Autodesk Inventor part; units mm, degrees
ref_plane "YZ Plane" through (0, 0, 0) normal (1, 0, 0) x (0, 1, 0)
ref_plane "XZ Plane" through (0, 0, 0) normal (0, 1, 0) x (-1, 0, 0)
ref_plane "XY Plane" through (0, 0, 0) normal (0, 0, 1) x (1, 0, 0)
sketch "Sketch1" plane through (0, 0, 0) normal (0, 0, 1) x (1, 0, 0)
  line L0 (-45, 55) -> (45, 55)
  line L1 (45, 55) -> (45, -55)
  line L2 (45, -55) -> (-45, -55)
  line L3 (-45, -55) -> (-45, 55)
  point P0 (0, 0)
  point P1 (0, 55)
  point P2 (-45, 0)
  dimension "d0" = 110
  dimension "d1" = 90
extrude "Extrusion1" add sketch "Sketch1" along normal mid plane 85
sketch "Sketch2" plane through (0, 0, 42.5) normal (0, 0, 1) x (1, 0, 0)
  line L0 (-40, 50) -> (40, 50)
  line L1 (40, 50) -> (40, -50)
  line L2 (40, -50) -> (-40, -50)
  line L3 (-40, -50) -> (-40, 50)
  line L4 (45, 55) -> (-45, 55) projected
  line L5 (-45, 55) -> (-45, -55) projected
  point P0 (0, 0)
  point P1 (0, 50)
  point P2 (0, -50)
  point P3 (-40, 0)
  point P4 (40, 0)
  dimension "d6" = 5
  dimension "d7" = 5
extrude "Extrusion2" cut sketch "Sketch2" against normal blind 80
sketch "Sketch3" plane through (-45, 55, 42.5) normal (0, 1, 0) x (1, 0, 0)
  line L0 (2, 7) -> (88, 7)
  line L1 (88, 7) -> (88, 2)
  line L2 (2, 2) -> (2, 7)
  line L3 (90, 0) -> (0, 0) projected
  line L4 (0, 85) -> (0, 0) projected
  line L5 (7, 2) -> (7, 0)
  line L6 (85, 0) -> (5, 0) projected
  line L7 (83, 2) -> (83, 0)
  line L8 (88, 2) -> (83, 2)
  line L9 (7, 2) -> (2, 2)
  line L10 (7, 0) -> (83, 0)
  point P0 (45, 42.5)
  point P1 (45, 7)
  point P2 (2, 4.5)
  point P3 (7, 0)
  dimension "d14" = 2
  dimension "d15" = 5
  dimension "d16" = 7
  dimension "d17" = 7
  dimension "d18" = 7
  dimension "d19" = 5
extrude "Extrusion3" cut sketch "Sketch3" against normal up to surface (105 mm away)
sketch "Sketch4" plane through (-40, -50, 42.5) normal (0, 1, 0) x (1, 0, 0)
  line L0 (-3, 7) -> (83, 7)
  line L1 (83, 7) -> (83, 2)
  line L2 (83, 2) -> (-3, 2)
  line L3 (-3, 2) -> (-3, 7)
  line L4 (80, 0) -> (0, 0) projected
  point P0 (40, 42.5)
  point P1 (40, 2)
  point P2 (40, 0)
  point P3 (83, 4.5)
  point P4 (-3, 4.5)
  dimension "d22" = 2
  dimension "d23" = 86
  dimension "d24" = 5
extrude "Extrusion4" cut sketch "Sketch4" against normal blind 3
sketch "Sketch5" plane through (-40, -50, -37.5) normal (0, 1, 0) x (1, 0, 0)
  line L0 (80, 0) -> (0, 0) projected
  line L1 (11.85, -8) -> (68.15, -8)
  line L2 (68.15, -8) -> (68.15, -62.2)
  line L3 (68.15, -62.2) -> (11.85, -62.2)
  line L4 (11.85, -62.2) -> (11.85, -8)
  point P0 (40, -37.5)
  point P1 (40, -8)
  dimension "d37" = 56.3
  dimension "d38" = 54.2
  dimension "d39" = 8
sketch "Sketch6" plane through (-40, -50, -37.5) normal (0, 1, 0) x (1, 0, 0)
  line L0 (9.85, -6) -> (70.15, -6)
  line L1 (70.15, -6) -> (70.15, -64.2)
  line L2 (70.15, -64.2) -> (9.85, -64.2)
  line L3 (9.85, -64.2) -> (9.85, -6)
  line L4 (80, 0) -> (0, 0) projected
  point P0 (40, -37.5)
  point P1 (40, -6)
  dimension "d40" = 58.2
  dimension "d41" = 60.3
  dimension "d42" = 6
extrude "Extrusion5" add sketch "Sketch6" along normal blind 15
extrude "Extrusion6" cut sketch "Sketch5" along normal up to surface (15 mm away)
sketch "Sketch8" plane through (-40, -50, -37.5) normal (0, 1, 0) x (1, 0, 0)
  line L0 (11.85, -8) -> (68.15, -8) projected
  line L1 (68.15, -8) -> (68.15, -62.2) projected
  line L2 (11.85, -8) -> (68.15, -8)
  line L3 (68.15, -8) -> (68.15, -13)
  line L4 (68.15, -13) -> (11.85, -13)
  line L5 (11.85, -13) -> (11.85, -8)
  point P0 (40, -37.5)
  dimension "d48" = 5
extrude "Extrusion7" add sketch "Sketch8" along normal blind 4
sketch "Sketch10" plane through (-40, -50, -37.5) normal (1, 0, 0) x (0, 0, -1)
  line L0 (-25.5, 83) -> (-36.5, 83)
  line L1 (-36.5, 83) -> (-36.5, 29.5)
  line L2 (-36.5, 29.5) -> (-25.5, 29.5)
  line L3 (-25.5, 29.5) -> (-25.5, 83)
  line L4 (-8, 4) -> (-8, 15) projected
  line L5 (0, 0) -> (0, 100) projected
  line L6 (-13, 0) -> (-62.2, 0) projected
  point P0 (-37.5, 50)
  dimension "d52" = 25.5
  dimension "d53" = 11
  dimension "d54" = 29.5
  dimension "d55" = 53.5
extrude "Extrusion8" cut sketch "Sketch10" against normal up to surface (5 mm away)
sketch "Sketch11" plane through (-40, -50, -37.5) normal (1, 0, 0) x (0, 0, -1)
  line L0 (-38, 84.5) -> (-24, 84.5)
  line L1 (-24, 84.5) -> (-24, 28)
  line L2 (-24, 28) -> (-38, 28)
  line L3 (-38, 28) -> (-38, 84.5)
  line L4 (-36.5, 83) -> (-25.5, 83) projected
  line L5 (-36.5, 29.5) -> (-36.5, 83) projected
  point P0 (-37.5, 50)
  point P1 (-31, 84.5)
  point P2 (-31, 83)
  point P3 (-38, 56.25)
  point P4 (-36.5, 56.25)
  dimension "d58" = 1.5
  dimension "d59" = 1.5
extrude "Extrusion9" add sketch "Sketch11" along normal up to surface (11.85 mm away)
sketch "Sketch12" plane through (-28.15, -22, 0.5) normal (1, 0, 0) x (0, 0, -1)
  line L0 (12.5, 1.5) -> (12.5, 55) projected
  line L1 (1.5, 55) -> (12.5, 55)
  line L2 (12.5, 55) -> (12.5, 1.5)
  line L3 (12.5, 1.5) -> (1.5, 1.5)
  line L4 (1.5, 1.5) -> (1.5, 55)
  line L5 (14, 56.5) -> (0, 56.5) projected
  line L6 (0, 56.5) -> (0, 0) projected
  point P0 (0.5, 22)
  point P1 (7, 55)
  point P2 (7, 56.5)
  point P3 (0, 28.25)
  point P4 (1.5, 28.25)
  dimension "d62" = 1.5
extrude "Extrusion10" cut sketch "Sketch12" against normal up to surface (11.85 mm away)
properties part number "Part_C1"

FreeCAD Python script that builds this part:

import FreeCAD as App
import Part
import Sketcher

doc = App.newDocument("Part")
body = doc.addObject("PartDesign::Body", "Body")

# Sketch on XY plane
sketch1 = body.newObject("Sketcher::SketchObject", "Sketch")
sketch1.AttachmentSupport = (doc.getObject("XY_Plane"), [""])
sketch1.MapMode = "FlatFace"
sketch1.addGeometry(Part.LineSegment(App.Vector(45, 55, 0), App.Vector(-45, 55, 0)), False)
sketch1.addGeometry(Part.LineSegment(App.Vector(-45, 55, 0), App.Vector(-45, -55, 0)), False)
sketch1.addGeometry(Part.LineSegment(App.Vector(-45, -55, 0), App.Vector(45, -55, 0)), False)
sketch1.addGeometry(Part.LineSegment(App.Vector(45, -55, 0), App.Vector(45, 55, 0)), False)
sketch1.addConstraint(Sketcher.Constraint("Coincident", 0, 2, 1, 1))
sketch1.addConstraint(Sketcher.Constraint("Coincident", 1, 2, 2, 1))
sketch1.addConstraint(Sketcher.Constraint("Coincident", 2, 2, 3, 1))
sketch1.addConstraint(Sketcher.Constraint("Coincident", 3, 2, 0, 1))
sketch1.addConstraint(Sketcher.Constraint("Horizontal", 0))
sketch1.addConstraint(Sketcher.Constraint("Vertical", 1))
sketch1.addConstraint(Sketcher.Constraint("Horizontal", 2))
sketch1.addConstraint(Sketcher.Constraint("Vertical", 3))
sketch1.addConstraint(Sketcher.Constraint("Symmetric", 0, 2, 2, 2, -1, 1))
sketch1.addConstraint(Sketcher.Constraint("DistanceX", 0, 2, 0, 1, 90.0))
sketch1.addConstraint(Sketcher.Constraint("DistanceY", 1, 2, 1, 1, 110.0))
pad1 = body.newObject("PartDesign::Pad", "Pad")
pad1.Profile = sketch1
pad1.Length = 85
pad1.Midplane = True

# Sketch on XY plane
sketch2 = body.newObject("Sketcher::SketchObject", "Sketch001")
sketch2.AttachmentSupport = (doc.getObject("XY_Plane"), [""])
sketch2.MapMode = "FlatFace"
sketch2.AttachmentOffset = App.Placement(App.Vector(0, 0, 42.5), App.Rotation())
sketch2.addGeometry(Part.LineSegment(App.Vector(40, 50, 0), App.Vector(-40, 50, 0)), False)
sketch2.addGeometry(Part.LineSegment(App.Vector(-40, 50, 0), App.Vector(-40, -50, 0)), False)
sketch2.addGeometry(Part.LineSegment(App.Vector(-40, -50, 0), App.Vector(40, -50, 0)), False)
sketch2.addGeometry(Part.LineSegment(App.Vector(40, -50, 0), App.Vector(40, 50, 0)), False)
sketch2.addConstraint(Sketcher.Constraint("Coincident", 0, 2, 1, 1))
sketch2.addConstraint(Sketcher.Constraint("Coincident", 1, 2, 2, 1))
sketch2.addConstraint(Sketcher.Constraint("Coincident", 2, 2, 3, 1))
sketch2.addConstraint(Sketcher.Constraint("Coincident", 3, 2, 0, 1))
sketch2.addConstraint(Sketcher.Constraint("Horizontal", 0))
sketch2.addConstraint(Sketcher.Constraint("Vertical", 1))
sketch2.addConstraint(Sketcher.Constraint("Horizontal", 2))
sketch2.addConstraint(Sketcher.Constraint("Vertical", 3))
sketch2.addConstraint(Sketcher.Constraint("Symmetric", 0, 2, 2, 2, -1, 1))
sketch2.addConstraint(Sketcher.Constraint("DistanceX", 0, 2, 0, 1, 80.0))
sketch2.addConstraint(Sketcher.Constraint("DistanceY", 1, 2, 1, 1, 100.0))
pocket1 = body.newObject("PartDesign::Pocket", "Pocket")
pocket1.Profile = sketch2
pocket1.Length = 80

# Sketch on XZ plane
sketch3 = body.newObject("Sketcher::SketchObject", "Sketch002")
sketch3.AttachmentSupport = (doc.getObject("XZ_Plane"), [""])
sketch3.MapMode = "FlatFace"
sketch3.AttachmentOffset = App.Placement(App.Vector(0, 0, -55), App.Rotation())
sketch3.addGeometry(Part.LineSegment(App.Vector(43, 35.5, 0), App.Vector(-43, 35.5, 0)), False)
sketch3.addGeometry(Part.LineSegment(App.Vector(-43, 35.5, 0), App.Vector(-43, 40.5, 0)), False)
sketch3.addGeometry(Part.LineSegment(App.Vector(-43, 40.5, 0), App.Vector(-38, 40.5, 0)), False)
sketch3.addGeometry(Part.LineSegment(App.Vector(-38, 40.5, 0), App.Vector(-38, 42.5, 0)), False)
sketch3.addGeometry(Part.LineSegment(App.Vector(-38, 42.5, 0), App.Vector(38, 42.5, 0)), False)
sketch3.addGeometry(Part.LineSegment(App.Vector(38, 42.5, 0), App.Vector(38, 40.5, 0)), False)
sketch3.addGeometry(Part.LineSegment(App.Vector(38, 40.5, 0), App.Vector(43, 40.5, 0)), False)
sketch3.addGeometry(Part.LineSegment(App.Vector(43, 40.5, 0), App.Vector(43, 35.5, 0)), False)
sketch3.addConstraint(Sketcher.Constraint("Coincident", 0, 2, 1, 1))
sketch3.addConstraint(Sketcher.Constraint("Coincident", 1, 2, 2, 1))
sketch3.addConstraint(Sketcher.Constraint("Coincident", 2, 2, 3, 1))
sketch3.addConstraint(Sketcher.Constraint("Coincident", 3, 2, 4, 1))
sketch3.addConstraint(Sketcher.Constraint("Coincident", 4, 2, 5, 1))
sketch3.addConstraint(Sketcher.Constraint("Coincident", 5, 2, 6, 1))
sketch3.addConstraint(Sketcher.Constraint("Coincident", 6, 2, 7, 1))
sketch3.addConstraint(Sketcher.Constraint("Coincident", 7, 2, 0, 1))
sketch3.addConstraint(Sketcher.Constraint("Horizontal", 0))
sketch3.addConstraint(Sketcher.Constraint("Vertical", 1))
sketch3.addConstraint(Sketcher.Constraint("Horizontal", 2))
sketch3.addConstraint(Sketcher.Constraint("Vertical", 3))
sketch3.addConstraint(Sketcher.Constraint("Horizontal", 4))
sketch3.addConstraint(Sketcher.Constraint("Vertical", 5))
sketch3.addConstraint(Sketcher.Constraint("Horizontal", 6))
sketch3.addConstraint(Sketcher.Constraint("Vertical", 7))
sketch3.addConstraint(Sketcher.Constraint("Symmetric", 2, 2, 5, 2, -2))
sketch3.addConstraint(Sketcher.Constraint("Equal", 2, 6))
sketch3.addConstraint(Sketcher.Constraint("Equal", 6, 1))
sketch3.addConstraint(Sketcher.Constraint("DistanceX", 2, 1, 2, 2, 5.0))
sketch3.addConstraint(Sketcher.Constraint("DistanceY", 3, 1, 3, 2, 2.0))
sketch3.addConstraint(Sketcher.Constraint("DistanceX", 0, 2, 0, 1, 86.0))
sketch3.addConstraint(Sketcher.Constraint("DistanceY", -1, 1, 0, 2, 35.5))
pocket2 = body.newObject("PartDesign::Pocket", "Pocket001")
pocket2.Profile = sketch3
pocket2.Length = 105
pocket2.Reversed = True

# Sketch on XZ plane
sketch4 = body.newObject("Sketcher::SketchObject", "Sketch003")
sketch4.AttachmentSupport = (doc.getObject("XZ_Plane"), [""])
sketch4.MapMode = "FlatFace"
sketch4.AttachmentOffset = App.Placement(App.Vector(0, 0, 50), App.Rotation())
sketch4.addGeometry(Part.LineSegment(App.Vector(43, 36, 0), App.Vector(-43, 36, 0)), False)
sketch4.addGeometry(Part.LineSegment(App.Vector(-43, 36, 0), App.Vector(-43, 40, 0)), False)
sketch4.addGeometry(Part.LineSegment(App.Vector(-43, 40, 0), App.Vector(43, 40, 0)), False)
sketch4.addGeometry(Part.LineSegment(App.Vector(43, 40, 0), App.Vector(43, 36, 0)), False)
sketch4.addConstraint(Sketcher.Constraint("Coincident", 0, 2, 1, 1))
sketch4.addConstraint(Sketcher.Constraint("Coincident", 1, 2, 2, 1))
sketch4.addConstraint(Sketcher.Constraint("Coincident", 2, 2, 3, 1))
sketch4.addConstraint(Sketcher.Constraint("Coincident", 3, 2, 0, 1))
sketch4.addConstraint(Sketcher.Constraint("Horizontal", 0))
sketch4.addConstraint(Sketcher.Constraint("Vertical", 1))
sketch4.addConstraint(Sketcher.Constraint("Horizontal", 2))
sketch4.addConstraint(Sketcher.Constraint("Vertical", 3))
sketch4.addConstraint(Sketcher.Constraint("DistanceX", 0, 2, 0, 1, 86.0))
sketch4.addConstraint(Sketcher.Constraint("DistanceY", 1, 1, 1, 2, 5.0))
sketch4.addConstraint(Sketcher.Constraint("DistanceX", 0, 2, -1, 1, 43.0))
sketch4.addConstraint(Sketcher.Constraint("DistanceY", -1, 1, 0, 2, 35.5))
pocket3 = body.newObject("PartDesign::Pocket", "Pocket002")
pocket3.Profile = sketch4
pocket3.Length = 3
pocket3.Reversed = True

# Sketch on XZ plane
sketch5 = body.newObject("Sketcher::SketchObject", "Sketch004")
sketch5.AttachmentSupport = (doc.getObject("XZ_Plane"), [""])
sketch5.MapMode = "FlatFace"
sketch5.AttachmentOffset = App.Placement(App.Vector(0, 0, 50), App.Rotation())
sketch5.addGeometry(Part.LineSegment(App.Vector(30, -32, 0), App.Vector(-30, -32, 0)), False)
sketch5.addGeometry(Part.LineSegment(App.Vector(-30, -32, 0), App.Vector(-30, 27, 0)), False)
sketch5.addGeometry(Part.LineSegment(App.Vector(-30, 27, 0), App.Vector(30, 27, 0)), False)
sketch5.addGeometry(Part.LineSegment(App.Vector(30, 27, 0), App.Vector(30, -32, 0)), False)
sketch5.addConstraint(Sketcher.Constraint("Coincident", 0, 2, 1, 1))
sketch5.addConstraint(Sketcher.Constraint("Coincident", 1, 2, 2, 1))
sketch5.addConstraint(Sketcher.Constraint("Coincident", 2, 2, 3, 1))
sketch5.addConstraint(Sketcher.Constraint("Coincident", 3, 2, 0, 1))
sketch5.addConstraint(Sketcher.Constraint("Horizontal", 0))
sketch5.addConstraint(Sketcher.Constraint("Vertical", 1))
sketch5.addConstraint(Sketcher.Constraint("Horizontal", 2))
sketch5.addConstraint(Sketcher.Constraint("Vertical", 3))
sketch5.addConstraint(Sketcher.Constraint("DistanceX", 0, 2, 0, 1, 60.3))
sketch5.addConstraint(Sketcher.Constraint("DistanceY", 1, 1, 1, 2, 58.2))
sketch5.addConstraint(Sketcher.Constraint("DistanceY", 0, 2, -1, 1, 31.5))
sketch5.addConstraint(Sketcher.Constraint("DistanceX", 0, 2, -1, 1, 30.15))
pad2 = body.newObject("PartDesign::Pad", "Pad001")
pad2.Profile = sketch5
pad2.Length = 15
pad2.Reversed = True

# Sketch on XZ plane
sketch6 = body.newObject("Sketcher::SketchObject", "Sketch005")
sketch6.AttachmentSupport = (doc.getObject("XZ_Plane"), [""])
sketch6.MapMode = "FlatFace"
sketch6.AttachmentOffset = App.Placement(App.Vector(0, 0, 50), App.Rotation())
sketch6.addGeometry(Part.LineSegment(App.Vector(28, -30, 0), App.Vector(-28, -30, 0)), False)
sketch6.addGeometry(Part.LineSegment(App.Vector(-28, -30, 0), App.Vector(-28, 25, 0)), False)
sketch6.addGeometry(Part.LineSegment(App.Vector(-28, 25, 0), App.Vector(28, 25, 0)), False)
sketch6.addGeometry(Part.LineSegment(App.Vector(28, 25, 0), App.Vector(28, -30, 0)), False)
sketch6.addConstraint(Sketcher.Constraint("Coincident", 0, 2, 1, 1))
sketch6.addConstraint(Sketcher.Constraint("Coincident", 1, 2, 2, 1))
sketch6.addConstraint(Sketcher.Constraint("Coincident", 2, 2, 3, 1))
sketch6.addConstraint(Sketcher.Constraint("Coincident", 3, 2, 0, 1))
sketch6.addConstraint(Sketcher.Constraint("Horizontal", 0))
sketch6.addConstraint(Sketcher.Constraint("Vertical", 1))
sketch6.addConstraint(Sketcher.Constraint("Horizontal", 2))
sketch6.addConstraint(Sketcher.Constraint("Vertical", 3))
sketch6.addConstraint(Sketcher.Constraint("DistanceX", 0, 2, 0, 1, 56.3))
sketch6.addConstraint(Sketcher.Constraint("DistanceY", 1, 1, 1, 2, 54.2))
sketch6.addConstraint(Sketcher.Constraint("DistanceY", 0, 2, -1, 1, 29.5))
sketch6.addConstraint(Sketcher.Constraint("DistanceX", 0, 2, -1, 1, 28.15))
pocket4 = body.newObject("PartDesign::Pocket", "Pocket003")
pocket4.Profile = sketch6
pocket4.Length = 15

# Sketch on XZ plane
sketch7 = body.newObject("Sketcher::SketchObject", "Sketch006")
sketch7.AttachmentSupport = (doc.getObject("XZ_Plane"), [""])
sketch7.MapMode = "FlatFace"
sketch7.AttachmentOffset = App.Placement(App.Vector(0, 0, 50), App.Rotation())
sketch7.addGeometry(Part.LineSegment(App.Vector(28, -30, 0), App.Vector(-28, -30, 0)), False)
sketch7.addGeometry(Part.LineSegment(App.Vector(-28, -30, 0), App.Vector(-28, -24, 0)), False)
sketch7.addGeometry(Part.LineSegment(App.Vector(-28, -24, 0), App.Vector(28, -24, 0)), False)
sketch7.addGeometry(Part.LineSegment(App.Vector(28, -24, 0), App.Vector(28, -30, 0)), False)
sketch7.addConstraint(Sketcher.Constraint("Coincident", 0, 2, 1, 1))
sketch7.addConstraint(Sketcher.Constraint("Coincident", 1, 2, 2, 1))
sketch7.addConstraint(Sketcher.Constraint("Coincident", 2, 2, 3, 1))
sketch7.addConstraint(Sketcher.Constraint("Coincident", 3, 2, 0, 1))
sketch7.addConstraint(Sketcher.Constraint("Horizontal", 0))
sketch7.addConstraint(Sketcher.Constraint("Vertical", 1))
sketch7.addConstraint(Sketcher.Constraint("Horizontal", 2))
sketch7.addConstraint(Sketcher.Constraint("Vertical", 3))
sketch7.addConstraint(Sketcher.Constraint("DistanceY", 1, 1, 1, 2, 5.0))
sketch7.addConstraint(Sketcher.Constraint("DistanceX", 0, 2, 0, 1, 56.3))
sketch7.addConstraint(Sketcher.Constraint("DistanceY", 0, 2, -1, 1, 29.5))
sketch7.addConstraint(Sketcher.Constraint("DistanceX", 0, 2, -1, 1, 28.15))
pad3 = body.newObject("PartDesign::Pad", "Pad002")
pad3.Profile = sketch7
pad3.Length = 4
pad3.Reversed = True

# Sketch on YZ plane
sketch8 = body.newObject("Sketcher::SketchObject", "Sketch007")
sketch8.AttachmentSupport = (doc.getObject("YZ_Plane"), [""])
sketch8.MapMode = "FlatFace"
sketch8.AttachmentOffset = App.Placement(App.Vector(0, 0, -40), App.Rotation())
sketch8.addGeometry(Part.LineSegment(App.Vector(-20, -12, 0), App.Vector(33, -12, 0)), False)
sketch8.addGeometry(Part.LineSegment(App.Vector(33, -12, 0), App.Vector(33, -1, 0)), False)
sketch8.addGeometry(Part.LineSegment(App.Vector(33, -1, 0), App.Vector(-20, -1, 0)), False)
sketch8.addGeometry(Part.LineSegment(App.Vector(-20, -1, 0), App.Vector(-20, -12, 0)), False)
sketch8.addConstraint(Sketcher.Constraint("Coincident", 0, 2, 1, 1))
sketch8.addConstraint(Sketcher.Constraint("Coincident", 1, 2, 2, 1))
sketch8.addConstraint(Sketcher.Constraint("Coincident", 2, 2, 3, 1))
sketch8.addConstraint(Sketcher.Constraint("Coincident", 3, 2, 0, 1))
sketch8.addConstraint(Sketcher.Constraint("Horizontal", 0))
sketch8.addConstraint(Sketcher.Constraint("Vertical", 1))
sketch8.addConstraint(Sketcher.Constraint("Horizontal", 2))
sketch8.addConstraint(Sketcher.Constraint("Vertical", 3))
sketch8.addConstraint(Sketcher.Constraint("DistanceY", 1, 1, 1, 2, 11.0))
sketch8.addConstraint(Sketcher.Constraint("DistanceX", 0, 1, 0, 2, 53.5))
sketch8.addConstraint(Sketcher.Constraint("DistanceX", -1, 1, 0, 2, 33.0))
sketch8.addConstraint(Sketcher.Constraint("DistanceY", 0, 2, -1, 1, 12.0))
pocket5 = body.newObject("PartDesign::Pocket", "Pocket004")
pocket5.Profile = sketch8
pocket5.Length = 5

# Sketch on YZ plane
sketch9 = body.newObject("Sketcher::SketchObject", "Sketch008")
sketch9.AttachmentSupport = (doc.getObject("YZ_Plane"), [""])
sketch9.MapMode = "FlatFace"
sketch9.AttachmentOffset = App.Placement(App.Vector(0, 0, -40), App.Rotation())
sketch9.addGeometry(Part.LineSegment(App.Vector(34, -14, 0), App.Vector(34, 0, 0)), False)
sketch9.addGeometry(Part.LineSegment(App.Vector(34, 0, 0), App.Vector(-22, 0, 0)), False)
sketch9.addGeometry(Part.LineSegment(App.Vector(-22, 0, 0), App.Vector(-22, -14, 0)), False)
sketch9.addGeometry(Part.LineSegment(App.Vector(-22, -14, 0), App.Vector(34, -14, 0)), False)
sketch9.addConstraint(Sketcher.Constraint("Coincident", 0, 2, 1, 1))
sketch9.addConstraint(Sketcher.Constraint("Coincident", 1, 2, 2, 1))
sketch9.addConstraint(Sketcher.Constraint("Coincident", 2, 2, 3, 1))
sketch9.addConstraint(Sketcher.Constraint("Coincident", 3, 2, 0, 1))
sketch9.addConstraint(Sketcher.Constraint("Vertical", 0))
sketch9.addConstraint(Sketcher.Constraint("Horizontal", 1))
sketch9.addConstraint(Sketcher.Constraint("Vertical", 2))
sketch9.addConstraint(Sketcher.Constraint("Horizontal", 3))
sketch9.addConstraint(Sketcher.Constraint("DistanceY", 0, 1, 0, 2, 14.0))
sketch9.addConstraint(Sketcher.Constraint("DistanceX", 1, 2, 1, 1, 56.5))
sketch9.addConstraint(Sketcher.Constraint("DistanceX", 1, 2, -1, 1, 22.0))
sketch9.addConstraint(Sketcher.Constraint("DistanceY", -1, 1, 0, 2, 0.5))
pad4 = body.newObject("PartDesign::Pad", "Pad003")
pad4.Profile = sketch9
pad4.Length = 11.85

# Sketch on YZ plane
sketch10 = body.newObject("Sketcher::SketchObject", "Sketch009")
sketch10.AttachmentSupport = (doc.getObject("YZ_Plane"), [""])
sketch10.MapMode = "FlatFace"
sketch10.AttachmentOffset = App.Placement(App.Vector(0, 0, -28.15), App.Rotation())
sketch10.addGeometry(Part.LineSegment(App.Vector(-20, -1, 0), App.Vector(-20, -12, 0)), False)
sketch10.addGeometry(Part.LineSegment(App.Vector(-20, -12, 0), App.Vector(33, -12, 0)), False)
sketch10.addGeometry(Part.LineSegment(App.Vector(33, -12, 0), App.Vector(33, -1, 0)), False)
sketch10.addGeometry(Part.LineSegment(App.Vector(33, -1, 0), App.Vector(-20, -1, 0)), False)
sketch10.addConstraint(Sketcher.Constraint("Coincident", 0, 2, 1, 1))
sketch10.addConstraint(Sketcher.Constraint("Coincident", 1, 2, 2, 1))
sketch10.addConstraint(Sketcher.Constraint("Coincident", 2, 2, 3, 1))
sketch10.addConstraint(Sketcher.Constraint("Coincident", 3, 2, 0, 1))
sketch10.addConstraint(Sketcher.Constraint("Vertical", 0))
sketch10.addConstraint(Sketcher.Constraint("Horizontal", 1))
sketch10.addConstraint(Sketcher.Constraint("Vertical", 2))
sketch10.addConstraint(Sketcher.Constraint("Horizontal", 3))
sketch10.addConstraint(Sketcher.Constraint("DistanceY", 0, 2, 0, 1, 11.0))
sketch10.addConstraint(Sketcher.Constraint("DistanceX", 1, 1, 1, 2, 53.5))
sketch10.addConstraint(Sketcher.Constraint("DistanceY", 0, 2, -1, 1, 12.0))
sketch10.addConstraint(Sketcher.Constraint("DistanceX", -1, 1, 1, 2, 33.0))
pocket6 = body.newObject("PartDesign::Pocket", "Pocket005")
pocket6.Profile = sketch10
pocket6.Length = 11.85

doc.recompute()
